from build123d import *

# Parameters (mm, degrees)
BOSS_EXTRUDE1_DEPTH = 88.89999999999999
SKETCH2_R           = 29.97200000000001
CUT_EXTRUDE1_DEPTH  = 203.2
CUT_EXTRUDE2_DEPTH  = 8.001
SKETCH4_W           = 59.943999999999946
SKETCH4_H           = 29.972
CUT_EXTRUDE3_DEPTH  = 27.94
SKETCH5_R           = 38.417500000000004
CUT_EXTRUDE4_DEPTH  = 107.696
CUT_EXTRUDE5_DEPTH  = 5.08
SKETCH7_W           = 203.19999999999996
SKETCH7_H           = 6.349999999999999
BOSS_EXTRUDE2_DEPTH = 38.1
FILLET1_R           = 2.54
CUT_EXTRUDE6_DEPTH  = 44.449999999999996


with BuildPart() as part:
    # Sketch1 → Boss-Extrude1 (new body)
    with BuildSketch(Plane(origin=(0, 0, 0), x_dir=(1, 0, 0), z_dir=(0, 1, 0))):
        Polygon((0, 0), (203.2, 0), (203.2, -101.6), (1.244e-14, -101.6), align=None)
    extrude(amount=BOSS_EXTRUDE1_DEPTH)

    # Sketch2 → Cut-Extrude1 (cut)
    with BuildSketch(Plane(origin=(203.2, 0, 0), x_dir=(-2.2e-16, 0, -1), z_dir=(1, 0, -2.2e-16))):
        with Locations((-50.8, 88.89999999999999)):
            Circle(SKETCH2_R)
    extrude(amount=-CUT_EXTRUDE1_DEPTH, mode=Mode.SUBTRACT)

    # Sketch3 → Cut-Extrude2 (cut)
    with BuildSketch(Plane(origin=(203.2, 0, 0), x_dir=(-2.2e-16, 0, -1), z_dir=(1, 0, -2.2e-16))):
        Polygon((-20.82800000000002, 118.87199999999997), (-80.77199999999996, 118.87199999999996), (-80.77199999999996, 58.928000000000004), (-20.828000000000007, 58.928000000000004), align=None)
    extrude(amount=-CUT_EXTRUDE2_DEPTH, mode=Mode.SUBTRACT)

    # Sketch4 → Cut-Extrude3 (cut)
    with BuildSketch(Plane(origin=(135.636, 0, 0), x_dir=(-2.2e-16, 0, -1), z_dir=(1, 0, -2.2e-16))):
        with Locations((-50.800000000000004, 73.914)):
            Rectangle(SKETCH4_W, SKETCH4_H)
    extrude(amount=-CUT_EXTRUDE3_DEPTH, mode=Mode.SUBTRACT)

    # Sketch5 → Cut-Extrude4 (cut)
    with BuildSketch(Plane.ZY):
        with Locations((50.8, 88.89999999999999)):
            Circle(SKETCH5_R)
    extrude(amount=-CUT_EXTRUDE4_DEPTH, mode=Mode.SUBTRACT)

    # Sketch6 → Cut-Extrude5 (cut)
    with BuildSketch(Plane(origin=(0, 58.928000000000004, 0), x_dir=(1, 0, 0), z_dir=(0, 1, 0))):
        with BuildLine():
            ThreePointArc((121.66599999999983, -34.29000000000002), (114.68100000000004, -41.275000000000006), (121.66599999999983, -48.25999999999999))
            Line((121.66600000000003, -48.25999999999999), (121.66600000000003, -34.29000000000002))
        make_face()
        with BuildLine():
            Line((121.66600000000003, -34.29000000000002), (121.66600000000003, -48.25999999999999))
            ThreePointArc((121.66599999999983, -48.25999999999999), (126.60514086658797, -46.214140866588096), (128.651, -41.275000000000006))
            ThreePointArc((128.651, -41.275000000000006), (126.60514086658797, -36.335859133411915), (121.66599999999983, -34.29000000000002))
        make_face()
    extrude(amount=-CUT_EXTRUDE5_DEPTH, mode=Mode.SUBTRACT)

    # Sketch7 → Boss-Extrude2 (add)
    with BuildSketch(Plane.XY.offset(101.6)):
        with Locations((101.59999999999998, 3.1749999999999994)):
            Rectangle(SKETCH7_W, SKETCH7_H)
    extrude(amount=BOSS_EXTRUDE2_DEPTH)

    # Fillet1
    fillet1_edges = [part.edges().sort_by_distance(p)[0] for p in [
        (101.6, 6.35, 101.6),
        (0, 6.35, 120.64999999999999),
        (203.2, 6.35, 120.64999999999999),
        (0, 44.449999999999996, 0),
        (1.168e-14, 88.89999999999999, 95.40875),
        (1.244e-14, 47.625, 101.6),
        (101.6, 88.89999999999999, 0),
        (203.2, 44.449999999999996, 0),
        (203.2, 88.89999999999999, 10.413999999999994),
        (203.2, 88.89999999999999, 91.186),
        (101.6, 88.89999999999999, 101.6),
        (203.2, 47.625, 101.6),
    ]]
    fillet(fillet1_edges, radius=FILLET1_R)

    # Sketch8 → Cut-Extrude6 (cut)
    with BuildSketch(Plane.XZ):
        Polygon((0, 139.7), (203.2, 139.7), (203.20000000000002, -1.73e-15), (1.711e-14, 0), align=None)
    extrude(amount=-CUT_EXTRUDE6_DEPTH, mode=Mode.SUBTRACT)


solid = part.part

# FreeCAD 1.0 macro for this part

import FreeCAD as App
import Part
import Sketcher
from FreeCAD import Vector
Q = App.Units.Quantity


def edges_at(feature, points):
    """Names of the edges that pass closest to the given points."""
    edges = feature.Shape.Edges
    near = lambda p: min(range(len(edges)), key=lambda i: edges[i].distToShape(Part.Vertex(*p))[0])
    return sorted({f"Edge{near(p) + 1}" for p in points})


def add_polygon(sketch, points):
    """Adds a closed chain of lines whose ends are joined by coincident constraints."""
    first, n = sketch.GeometryCount, len(points)
    for a, b in zip(points, points[1:] + points[:1]):
        sketch.addGeometry(Part.LineSegment(App.Vector(*a, 0), App.Vector(*b, 0)), False)
    for i in range(n):
        sketch.addConstraint(Sketcher.Constraint("Coincident", first + i, 2, first + (i + 1) % n, 1))

doc = App.newDocument("Part")
body = doc.addObject("PartDesign::Body", "Body")

# Sketch on XZ plane
sketch1 = doc.addObject("Sketcher::SketchObject", "Sketch")
body.addObject(sketch1)
sketch1.AttachmentSupport = (doc.XZ_Plane, [""])
sketch1.MapMode = "FlatFace"
add_polygon(sketch1, [(203, 0), (0, 0), (0, 102), (203, 102)])  # lines 0-3
sketch1.addConstraint([
    Sketcher.Constraint("Horizontal", 0),
    Sketcher.Constraint("Vertical", 1),
    Sketcher.Constraint("Horizontal", 2),
    Sketcher.Constraint("Vertical", 3),
    Sketcher.Constraint("Coincident", 0, 2, -1, 1),
    Sketcher.Constraint("DistanceX", 0, 2, 0, 1, Q("8 in")),
    Sketcher.Constraint("DistanceY", 1, 1, 1, 2, Q("4 in")),
])
pad1 = doc.addObject("PartDesign::Pad", "Pad")
body.addObject(pad1)
pad1.Profile = sketch1
pad1.Length = Q("3.5 in")
pad1.Reversed = True

# Sketch on YZ plane
sketch2 = doc.addObject("Sketcher::SketchObject", "Sketch001")
body.addObject(sketch2)
sketch2.AttachmentSupport = (doc.YZ_Plane, [""])
sketch2.MapMode = "FlatFace"
sketch2.AttachmentOffset = App.Placement(Vector(0, 0, 8 * 25.4), App.Rotation())
sketch2.addGeometry(Part.Circle(Vector(89, 51, 0), Vector(0, 0, 1), 30), False)
sketch2.addConstraint([
    Sketcher.Constraint("Diameter", 0, Q("2.36 in")),
    Sketcher.Constraint("DistanceY", -1, 1, 0, 3, Q("2 in")),
    Sketcher.Constraint("DistanceX", -1, 1, 0, 3, Q("3.5 in")),
])
pocket1 = doc.addObject("PartDesign::Pocket", "Pocket")
body.addObject(pocket1)
pocket1.Profile = sketch2
pocket1.Length = Q("8 in")

# Sketch on YZ plane
sketch3 = doc.addObject("Sketcher::SketchObject", "Sketch002")
body.addObject(sketch3)
sketch3.AttachmentSupport = (doc.YZ_Plane, [""])
sketch3.MapMode = "FlatFace"
sketch3.AttachmentOffset = App.Placement(Vector(0, 0, 8 * 25.4), App.Rotation())
add_polygon(sketch3, [(119, 21), (119, 81), (59, 81), (59, 21)])  # lines 0-3
sketch3.addConstraint([
    Sketcher.Constraint("Vertical", 0),
    Sketcher.Constraint("Horizontal", 1),
    Sketcher.Constraint("Vertical", 2),
    Sketcher.Constraint("Horizontal", 3),
    Sketcher.Constraint("Equal", 3, 0),
    Sketcher.Constraint("DistanceX", 1, 2, 1, 1, Q("2.36 in")),
    Sketcher.Constraint("DistanceX", -1, 1, 0, 2, Q("4.68 in")),
    Sketcher.Constraint("DistanceY", -1, 1, 0, 2, Q("3.18 in")),
])
pocket2 = doc.addObject("PartDesign::Pocket", "Pocket001")
body.addObject(pocket2)
pocket2.Profile = sketch3
pocket2.Length = Q("0.315 in")

# Sketch on YZ plane
sketch4 = doc.addObject("Sketcher::SketchObject", "Sketch003")
body.addObject(sketch4)
sketch4.AttachmentSupport = (doc.YZ_Plane, [""])
sketch4.MapMode = "FlatFace"
sketch4.AttachmentOffset = App.Placement(Vector(0, 0, 5.34 * 25.4), App.Rotation())
add_polygon(sketch4, [(89, 81), (59, 81), (59, 21), (89, 21)])  # lines 0-3
sketch4.addConstraint([
    Sketcher.Constraint("Horizontal", 0),
    Sketcher.Constraint("Vertical", 1),
    Sketcher.Constraint("Horizontal", 2),
    Sketcher.Constraint("Vertical", 3),
    Sketcher.Constraint("DistanceX", 0, 2, 0, 1, Q("1.18 in")),
    Sketcher.Constraint("DistanceY", 1, 2, 1, 1, Q("2.36 in")),
    Sketcher.Constraint("DistanceX", -1, 1, 2, 2, Q("3.5 in")),
    Sketcher.Constraint("DistanceY", -1, 1, 0, 2, Q("3.18 in")),
])
pocket3 = doc.addObject("PartDesign::Pocket", "Pocket002")
body.addObject(pocket3)
pocket3.Profile = sketch4
pocket3.Length = Q("1.1 in")

# Sketch on YZ plane
sketch5 = doc.addObject("Sketcher::SketchObject", "Sketch004")
body.addObject(sketch5)
sketch5.AttachmentSupport = (doc.YZ_Plane, [""])
sketch5.MapMode = "FlatFace"
sketch5.addGeometry(Part.Circle(Vector(89, 51, 0), Vector(0, 0, 1), 38), False)
sketch5.addConstraint([
    Sketcher.Constraint("Diameter", 0, Q("3.025 in")),
    Sketcher.Constraint("DistanceY", -1, 1, 0, 3, Q("2 in")),
    Sketcher.Constraint("DistanceX", -1, 1, 0, 3, Q("3.5 in")),
])
pocket4 = doc.addObject("PartDesign::Pocket", "Pocket003")
body.addObject(pocket4)
pocket4.Profile = sketch5
pocket4.Length = Q("4.24 in")
pocket4.Reversed = True

# Sketch on XZ plane
sketch6 = doc.addObject("Sketcher::SketchObject", "Sketch005")
body.addObject(sketch6)
sketch6.AttachmentSupport = (doc.XZ_Plane, [""])
sketch6.MapMode = "FlatFace"
sketch6.AttachmentOffset = App.Placement(Vector(0, 0, -2.32 * 25.4), App.Rotation())
sketch6.addGeometry(Part.Circle(Vector(122, 41, 0), Vector(0, 0, 1), 7), False)
sketch6.addConstraint([
    Sketcher.Constraint("Diameter", 0, Q("0.55 in")),
    Sketcher.Constraint("DistanceX", -1, 1, 0, 3, Q("4.79 in")),
    Sketcher.Constraint("DistanceY", -1, 1, 0, 3, Q("1.625 in")),
])
pocket5 = doc.addObject("PartDesign::Pocket", "Pocket004")
body.addObject(pocket5)
pocket5.Profile = sketch6
pocket5.Length = Q("0.2 in")
pocket5.Reversed = True

# Sketch on XY plane
sketch7 = doc.addObject("Sketcher::SketchObject", "Sketch006")
body.addObject(sketch7)
sketch7.AttachmentSupport = (doc.XY_Plane, [""])
sketch7.MapMode = "FlatFace"
sketch7.AttachmentOffset = App.Placement(Vector(0, 0, 4 * 25.4), App.Rotation())
add_polygon(sketch7, [(0, 6), (0, 0), (203, 0), (203, 6)])  # lines 0-3
sketch7.addConstraint([
    Sketcher.Constraint("Vertical", 0),
    Sketcher.Constraint("Horizontal", 1),
    Sketcher.Constraint("Vertical", 2),
    Sketcher.Constraint("Horizontal", 3),
    Sketcher.Constraint("Coincident", 0, 2, -1, 1),
    Sketcher.Constraint("DistanceX", 1, 1, 1, 2, Q("8 in")),
    Sketcher.Constraint("DistanceY", 0, 2, 0, 1, Q("0.25 in")),
])
pad2 = doc.addObject("PartDesign::Pad", "Pad001")
body.addObject(pad2)
pad2.Profile = sketch7
pad2.Length = Q("1.5 in")
doc.recompute()

fillet = doc.addObject("PartDesign::Fillet", "Fillet")
body.addObject(fillet)
fillet.Base = (pad2, edges_at(pad2, [
    (101.6, 6.35, 101.6),
    (0, 6.35, 120.65),
    (203.2, 6.35, 120.65),
    (0, 44.45, 0),
    (0, 88.9, 95.409),
    (0, 47.625, 101.6),
    (101.6, 88.9, 0),
    (203.2, 44.45, 0),
    (203.2, 88.9, 10.414),
    (203.2, 88.9, 91.186),
    (101.6, 88.9, 101.6),
    (203.2, 47.625, 101.6),
]))
fillet.Radius = Q("0.1 in")

# Sketch on XZ plane
sketch8 = doc.addObject("Sketcher::SketchObject", "Sketch007")
body.addObject(sketch8)
sketch8.AttachmentSupport = (doc.XZ_Plane, [""])
sketch8.MapMode = "FlatFace"
add_polygon(sketch8, [(203, 140), (0, 140), (0, 0), (203, 0)])  # lines 0-3
sketch8.addConstraint([
    Sketcher.Constraint("Horizontal", 0),
    Sketcher.Constraint("Vertical", 1),
    Sketcher.Constraint("Horizontal", 2),
    Sketcher.Constraint("Vertical", 3),
    Sketcher.Constraint("Coincident", 1, 2, -1, 1),
    Sketcher.Constraint("DistanceX", 0, 2, 0, 1, Q("8 in")),
    Sketcher.Constraint("DistanceY", 1, 2, 1, 1, Q("5.5 in")),
])
pocket6 = doc.addObject("PartDesign::Pocket", "Pocket005")
body.addObject(pocket6)
pocket6.Profile = sketch8
pocket6.Length = Q("1.75 in")

doc.recompute()
